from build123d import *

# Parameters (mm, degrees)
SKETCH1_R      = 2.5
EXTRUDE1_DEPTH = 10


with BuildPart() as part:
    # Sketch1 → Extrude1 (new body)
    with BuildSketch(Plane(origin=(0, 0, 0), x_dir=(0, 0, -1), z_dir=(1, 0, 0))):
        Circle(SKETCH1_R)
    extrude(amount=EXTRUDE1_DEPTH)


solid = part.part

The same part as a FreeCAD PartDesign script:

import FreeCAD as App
import Part
import Sketcher

doc = App.newDocument("Part")
params = doc.addObject("Spreadsheet::Sheet", "Params")
for row, (alias, value) in enumerate([
    ("sketch1_diameter", "5 mm"),
    ("pad1_length", "10 mm"),
], start=1):
    params.set(f"A{row}", alias)
    params.set(f"B{row}", "=" + value)
    params.setAlias(f"B{row}", alias)

body = doc.addObject("PartDesign::Body", "Body")

# Sketch on YZ plane
sketch1 = doc.addObject("Sketcher::SketchObject", "Sketch")
body.addObject(sketch1)
sketch1.AttachmentSupport = (doc.YZ_Plane, [""])
sketch1.MapMode = "FlatFace"
sketch1.addGeometry(Part.Circle(App.Vector(0, 0, 0), App.Vector(0, 0, 1), 2.5), False)
sketch1.addConstraint(Sketcher.Constraint("Coincident", 0, 3, -1, 1))
sketch1.addConstraint(Sketcher.Constraint("Diameter", 0, 5.0))
sketch1.setExpression("Constraints[1]", "Params.sketch1_diameter")
pad1 = doc.addObject("PartDesign::Pad", "Pad")
body.addObject(pad1)
pad1.Profile = sketch1
pad1.setExpression("Length", "Params.pad1_length")

doc.recompute()
